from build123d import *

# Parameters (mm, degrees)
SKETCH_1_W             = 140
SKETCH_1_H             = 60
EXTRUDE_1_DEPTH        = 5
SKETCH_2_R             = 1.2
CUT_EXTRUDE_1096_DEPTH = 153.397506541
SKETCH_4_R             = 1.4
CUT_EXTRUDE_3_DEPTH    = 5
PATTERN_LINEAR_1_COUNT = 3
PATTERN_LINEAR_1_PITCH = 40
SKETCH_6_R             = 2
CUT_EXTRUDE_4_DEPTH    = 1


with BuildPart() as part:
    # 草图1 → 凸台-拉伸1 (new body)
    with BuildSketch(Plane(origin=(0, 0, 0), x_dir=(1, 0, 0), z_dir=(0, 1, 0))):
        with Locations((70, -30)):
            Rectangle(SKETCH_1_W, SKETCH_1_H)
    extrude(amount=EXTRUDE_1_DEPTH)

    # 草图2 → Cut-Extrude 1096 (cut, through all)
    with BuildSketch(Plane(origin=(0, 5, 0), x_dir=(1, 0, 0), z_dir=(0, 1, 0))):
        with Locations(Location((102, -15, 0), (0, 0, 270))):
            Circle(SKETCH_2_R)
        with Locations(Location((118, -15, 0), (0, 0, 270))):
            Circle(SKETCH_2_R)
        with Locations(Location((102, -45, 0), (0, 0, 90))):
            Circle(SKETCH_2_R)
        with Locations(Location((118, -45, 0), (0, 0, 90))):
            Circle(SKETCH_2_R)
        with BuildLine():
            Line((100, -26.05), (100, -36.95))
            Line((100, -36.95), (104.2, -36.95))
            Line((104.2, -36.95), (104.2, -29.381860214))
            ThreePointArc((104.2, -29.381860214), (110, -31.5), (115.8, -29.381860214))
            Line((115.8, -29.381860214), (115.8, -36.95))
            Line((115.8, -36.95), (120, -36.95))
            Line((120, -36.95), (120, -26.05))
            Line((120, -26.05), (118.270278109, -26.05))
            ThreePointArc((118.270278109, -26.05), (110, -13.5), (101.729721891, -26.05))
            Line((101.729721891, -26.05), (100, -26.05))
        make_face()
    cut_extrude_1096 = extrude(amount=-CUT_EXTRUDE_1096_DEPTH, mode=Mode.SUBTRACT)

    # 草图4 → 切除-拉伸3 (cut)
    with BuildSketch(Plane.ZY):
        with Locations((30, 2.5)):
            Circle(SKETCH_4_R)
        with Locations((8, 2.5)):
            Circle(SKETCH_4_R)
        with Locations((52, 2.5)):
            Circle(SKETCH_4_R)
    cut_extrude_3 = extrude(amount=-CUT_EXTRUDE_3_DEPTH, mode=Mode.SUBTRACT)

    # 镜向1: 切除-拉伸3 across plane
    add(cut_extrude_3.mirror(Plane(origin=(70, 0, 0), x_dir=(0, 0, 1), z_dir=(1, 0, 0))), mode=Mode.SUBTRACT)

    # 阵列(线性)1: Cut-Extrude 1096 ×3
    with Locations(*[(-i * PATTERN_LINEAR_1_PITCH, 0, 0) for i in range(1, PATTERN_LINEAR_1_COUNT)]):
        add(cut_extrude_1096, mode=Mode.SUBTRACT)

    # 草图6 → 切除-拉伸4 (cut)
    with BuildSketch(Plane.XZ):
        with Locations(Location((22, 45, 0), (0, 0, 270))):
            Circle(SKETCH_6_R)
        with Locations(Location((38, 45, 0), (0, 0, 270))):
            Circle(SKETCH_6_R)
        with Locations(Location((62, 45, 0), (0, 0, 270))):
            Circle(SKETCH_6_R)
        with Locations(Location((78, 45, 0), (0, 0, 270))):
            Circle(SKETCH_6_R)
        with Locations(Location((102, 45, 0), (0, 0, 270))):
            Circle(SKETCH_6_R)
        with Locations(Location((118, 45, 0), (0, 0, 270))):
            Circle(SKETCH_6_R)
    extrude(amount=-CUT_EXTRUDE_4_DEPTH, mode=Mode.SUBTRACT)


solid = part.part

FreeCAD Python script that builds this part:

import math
import FreeCAD as App
import Part
import Sketcher

V = App.Vector

doc = App.newDocument("Part")
body = doc.addObject("PartDesign::Body", "Body")

# Sketch on XZ plane
sketch1 = doc.addObject("Sketcher::SketchObject", "Sketch")
body.addObject(sketch1)
sketch1.AttachmentSupport = (doc.XZ_Plane, [""])
sketch1.MapMode = "FlatFace"
sketch1.addGeometry(Part.LineSegment(V(0, 0, 0), V(0, 60, 0)), False)
sketch1.addGeometry(Part.LineSegment(V(0, 60, 0), V(140, 60, 0)), False)
sketch1.addGeometry(Part.LineSegment(V(140, 60, 0), V(140, 0, 0)), False)
sketch1.addGeometry(Part.LineSegment(V(140, 0, 0), V(0, 0, 0)), False)
sketch1.addConstraint(Sketcher.Constraint("Coincident", 0, 2, 1, 1))
sketch1.addConstraint(Sketcher.Constraint("Coincident", 1, 2, 2, 1))
sketch1.addConstraint(Sketcher.Constraint("Coincident", 2, 2, 3, 1))
sketch1.addConstraint(Sketcher.Constraint("Coincident", 3, 2, 0, 1))
sketch1.addConstraint(Sketcher.Constraint("Vertical", 0))
sketch1.addConstraint(Sketcher.Constraint("Horizontal", 1))
sketch1.addConstraint(Sketcher.Constraint("Vertical", 2))
sketch1.addConstraint(Sketcher.Constraint("Horizontal", 3))
sketch1.addConstraint(Sketcher.Constraint("Coincident", 3, 2, -1, 1))
sketch1.addConstraint(Sketcher.Constraint("DistanceX", 1, 1, 1, 2, 140.0))
sketch1.addConstraint(Sketcher.Constraint("DistanceY", 0, 1, 0, 2, 60.0))
pad1 = doc.addObject("PartDesign::Pad", "Pad")
body.addObject(pad1)
pad1.Profile = sketch1
pad1.Length = 5
pad1.Reversed = True

# Sketch on XZ plane
sketch2 = doc.addObject("Sketcher::SketchObject", "Sketch001")
body.addObject(sketch2)
sketch2.AttachmentSupport = (doc.XZ_Plane, [""])
sketch2.MapMode = "FlatFace"
sketch2.AttachmentOffset = App.Placement(V(0, 0, -5), App.Rotation())
sketch2.addGeometry(Part.Circle(V(102, 15, 0), V(0, 0, 1), 1.2), False)
sketch2.addGeometry(Part.Circle(V(118, 15, 0), V(0, 0, 1), 1.2), False)
sketch2.addGeometry(Part.Circle(V(102, 45, 0), V(0, 0, 1), 1.2), False)
sketch2.addGeometry(Part.Circle(V(118, 45, 0), V(0, 0, 1), 1.2), False)
sketch2.addGeometry(Part.LineSegment(V(100, 26.1, 0), V(100, 37, 0)), False)
sketch2.addGeometry(Part.LineSegment(V(100, 37, 0), V(104.2, 37, 0)), False)
sketch2.addGeometry(Part.LineSegment(V(104.2, 37, 0), V(104.2, 29.4, 0)), False)
sketch2.addGeometry(Part.ArcOfCircle(Part.Circle(V(110, 22.5, 0), V(0, 0, 1), 9), math.radians(50), math.radians(130)), False)
sketch2.addGeometry(Part.LineSegment(V(115.8, 29.4, 0), V(115.8, 37, 0)), False)
sketch2.addGeometry(Part.LineSegment(V(115.8, 37, 0), V(120, 37, 0)), False)
sketch2.addGeometry(Part.LineSegment(V(120, 37, 0), V(120, 26.1, 0)), False)
sketch2.addGeometry(Part.LineSegment(V(120, 26.1, 0), V(118.3, 26.1, 0)), False)
sketch2.addGeometry(Part.ArcOfCircle(Part.Circle(V(110, 22.5, 0), V(0, 0, 1), 9), math.radians(157), math.radians(383)), False)
sketch2.addGeometry(Part.LineSegment(V(101.7, 26.1, 0), V(100, 26.1, 0)), False)
sketch2.addConstraint(Sketcher.Constraint("Coincident", 4, 2, 5, 1))
sketch2.addConstraint(Sketcher.Constraint("Coincident", 5, 2, 6, 1))
sketch2.addConstraint(Sketcher.Constraint("Coincident", 6, 2, 7, 2))
sketch2.addConstraint(Sketcher.Constraint("Coincident", 7, 1, 8, 1))
sketch2.addConstraint(Sketcher.Constraint("Coincident", 8, 2, 9, 1))
sketch2.addConstraint(Sketcher.Constraint("Coincident", 9, 2, 10, 1))
sketch2.addConstraint(Sketcher.Constraint("Coincident", 10, 2, 11, 1))
sketch2.addConstraint(Sketcher.Constraint("Coincident", 11, 2, 12, 2))
sketch2.addConstraint(Sketcher.Constraint("Coincident", 12, 1, 13, 1))
sketch2.addConstraint(Sketcher.Constraint("Coincident", 13, 2, 4, 1))
sketch2.addConstraint(Sketcher.Constraint("Vertical", 4))
sketch2.addConstraint(Sketcher.Constraint("Horizontal", 5))
sketch2.addConstraint(Sketcher.Constraint("Vertical", 6))
sketch2.addConstraint(Sketcher.Constraint("Vertical", 8))
sketch2.addConstraint(Sketcher.Constraint("Horizontal", 9))
sketch2.addConstraint(Sketcher.Constraint("Vertical", 10))
sketch2.addConstraint(Sketcher.Constraint("Horizontal", 11))
sketch2.addConstraint(Sketcher.Constraint("Horizontal", 13))
sketch2.addConstraint(Sketcher.Constraint("Coincident", 12, 3, 7, 3))
sketch2.addConstraint(Sketcher.Constraint("Equal", 0, 1))
sketch2.addConstraint(Sketcher.Constraint("Equal", 1, 2))
sketch2.addConstraint(Sketcher.Constraint("Equal", 2, 3))
sketch2.addConstraint(Sketcher.Constraint("Equal", 7, 12))
sketch2.addConstraint(Sketcher.Constraint("Horizontal", 0, 3, 1, 3))
sketch2.addConstraint(Sketcher.Constraint("Horizontal", 2, 3, 3, 3))
sketch2.addConstraint(Sketcher.Constraint("Horizontal", 6, 2, 7, 1))
sketch2.addConstraint(Sketcher.Constraint("Horizontal", 5, 2, 8, 2))
sketch2.addConstraint(Sketcher.Constraint("Horizontal", 11, 2, 12, 1))
sketch2.addConstraint(Sketcher.Constraint("Vertical", 0, 3, 2, 3))
sketch2.addConstraint(Sketcher.Constraint("Vertical", 1, 3, 3, 3))
sketch2.addConstraint(Sketcher.Constraint("Equal", 5, 9))
sketch2.addConstraint(Sketcher.Constraint("Radius", 7, 9.0))
sketch2.addConstraint(Sketcher.Constraint("Diameter", 0, 2.4))
sketch2.addConstraint(Sketcher.Constraint("DistanceX", 5, 1, 5, 2, 4.2))
sketch2.addConstraint(Sketcher.Constraint("DistanceY", 4, 1, 4, 2, 10.9))
sketch2.addConstraint(Sketcher.Constraint("DistanceX", -1, 1, 0, 3, 102.0))
sketch2.addConstraint(Sketcher.Constraint("DistanceY", -1, 1, 0, 3, 15.0))
sketch2.addConstraint(Sketcher.Constraint("DistanceX", -1, 1, 1, 3, 118.0))
sketch2.addConstraint(Sketcher.Constraint("DistanceY", -1, 1, 2, 3, 45.0))
sketch2.addConstraint(Sketcher.Constraint("DistanceX", -1, 1, 7, 3, 110.0))
sketch2.addConstraint(Sketcher.Constraint("DistanceX", -1, 1, 4, 2, 100.0))
sketch2.addConstraint(Sketcher.Constraint("DistanceY", -1, 1, 7, 3, 22.5))
sketch2.addConstraint(Sketcher.Constraint("DistanceY", -1, 1, 4, 2, 36.95))
pocket1 = doc.addObject("PartDesign::Pocket", "Pocket")
body.addObject(pocket1)
pocket1.Profile = sketch2
pocket1.Type = "ThroughAll"
pocket1.Reversed = True

# Sketch on YZ plane
sketch3 = doc.addObject("Sketcher::SketchObject", "Sketch002")
body.addObject(sketch3)
sketch3.AttachmentSupport = (doc.YZ_Plane, [""])
sketch3.MapMode = "FlatFace"
sketch3.addGeometry(Part.Circle(V(2.5, 30, 0), V(0, 0, 1), 1.4), False)
sketch3.addGeometry(Part.Circle(V(2.5, 8, 0), V(0, 0, 1), 1.4), False)
sketch3.addGeometry(Part.Circle(V(2.5, 52, 0), V(0, 0, 1), 1.4), False)
sketch3.addConstraint(Sketcher.Constraint("Equal", 0, 1))
sketch3.addConstraint(Sketcher.Constraint("Equal", 1, 2))
sketch3.addConstraint(Sketcher.Constraint("Vertical", 0, 3, 1, 3))
sketch3.addConstraint(Sketcher.Constraint("Vertical", 1, 3, 2, 3))
sketch3.addConstraint(Sketcher.Constraint("Diameter", 0, 2.8))
sketch3.addConstraint(Sketcher.Constraint("DistanceY", -1, 1, 0, 3, 30.0))
sketch3.addConstraint(Sketcher.Constraint("DistanceY", -1, 1, 1, 3, 8.0))
sketch3.addConstraint(Sketcher.Constraint("DistanceY", -1, 1, 2, 3, 52.0))
sketch3.addConstraint(Sketcher.Constraint("DistanceX", -1, 1, 0, 3, 2.5))
pocket2 = doc.addObject("PartDesign::Pocket", "Pocket001")
body.addObject(pocket2)
pocket2.Profile = sketch3
pocket2.Length = 5
pocket2.Reversed = True
doc.recompute()

datumplane = doc.addObject("PartDesign::Plane", "DatumPlane")
body.addObject(datumplane)
datumplane.AttachmentSupport = (doc.YZ_Plane, [""])
datumplane.MapMode = "FlatFace"
datumplane.AttachmentOffset = App.Placement(V(0, 0, 70), App.Rotation())
mirrored = doc.addObject("PartDesign::Mirrored", "Mirrored")
body.addObject(mirrored)
mirrored.Originals = [pocket2]
mirrored.MirrorPlane = (datumplane, [""])
body.Tip = mirrored
doc.recompute()

linearpattern = doc.addObject("PartDesign::LinearPattern", "LinearPattern")
body.addObject(linearpattern)
linearpattern.Originals = [pocket1]
linearpattern.Direction = (doc.X_Axis, [""])
linearpattern.Mode = "offset"
linearpattern.Offset = 40
linearpattern.Occurrences = 3
linearpattern.Reversed = True
body.Tip = linearpattern

# Sketch on XZ plane
sketch4 = doc.addObject("Sketcher::SketchObject", "Sketch003")
body.addObject(sketch4)
sketch4.AttachmentSupport = (doc.XZ_Plane, [""])
sketch4.MapMode = "FlatFace"
sketch4.addGeometry(Part.Circle(V(22, 45, 0), V(0, 0, 1), 2), False)
sketch4.addGeometry(Part.Circle(V(38, 45, 0), V(0, 0, 1), 2), False)
sketch4.addGeometry(Part.Circle(V(62, 45, 0), V(0, 0, 1), 2), False)
sketch4.addGeometry(Part.Circle(V(78, 45, 0), V(0, 0, 1), 2), False)
sketch4.addGeometry(Part.Circle(V(102, 45, 0), V(0, 0, 1), 2), False)
sketch4.addGeometry(Part.Circle(V(118, 45, 0), V(0, 0, 1), 2), False)
sketch4.addConstraint(Sketcher.Constraint("Equal", 0, 1))
sketch4.addConstraint(Sketcher.Constraint("Equal", 1, 2))
sketch4.addConstraint(Sketcher.Constraint("Equal", 2, 3))
sketch4.addConstraint(Sketcher.Constraint("Equal", 3, 4))
sketch4.addConstraint(Sketcher.Constraint("Equal", 4, 5))
sketch4.addConstraint(Sketcher.Constraint("Horizontal", 0, 3, 1, 3))
sketch4.addConstraint(Sketcher.Constraint("Horizontal", 1, 3, 2, 3))
sketch4.addConstraint(Sketcher.Constraint("Horizontal", 2, 3, 3, 3))
sketch4.addConstraint(Sketcher.Constraint("Horizontal", 3, 3, 4, 3))
sketch4.addConstraint(Sketcher.Constraint("Horizontal", 4, 3, 5, 3))
sketch4.addConstraint(Sketcher.Constraint("Diameter", 0, 4.0))
sketch4.addConstraint(Sketcher.Constraint("DistanceX", -1, 1, 0, 3, 22.0))
sketch4.addConstraint(Sketcher.Constraint("DistanceY", -1, 1, 0, 3, 45.0))
sketch4.addConstraint(Sketcher.Constraint("DistanceX", -1, 1, 1, 3, 38.0))
sketch4.addConstraint(Sketcher.Constraint("DistanceX", -1, 1, 2, 3, 62.0))
sketch4.addConstraint(Sketcher.Constraint("DistanceX", -1, 1, 3, 3, 78.0))
sketch4.addConstraint(Sketcher.Constraint("DistanceX", -1, 1, 4, 3, 102.0))
sketch4.addConstraint(Sketcher.Constraint("DistanceX", -1, 1, 5, 3, 118.0))
pocket3 = doc.addObject("PartDesign::Pocket", "Pocket002")
body.addObject(pocket3)
pocket3.Profile = sketch4
pocket3.Length = 1

doc.recompute()
